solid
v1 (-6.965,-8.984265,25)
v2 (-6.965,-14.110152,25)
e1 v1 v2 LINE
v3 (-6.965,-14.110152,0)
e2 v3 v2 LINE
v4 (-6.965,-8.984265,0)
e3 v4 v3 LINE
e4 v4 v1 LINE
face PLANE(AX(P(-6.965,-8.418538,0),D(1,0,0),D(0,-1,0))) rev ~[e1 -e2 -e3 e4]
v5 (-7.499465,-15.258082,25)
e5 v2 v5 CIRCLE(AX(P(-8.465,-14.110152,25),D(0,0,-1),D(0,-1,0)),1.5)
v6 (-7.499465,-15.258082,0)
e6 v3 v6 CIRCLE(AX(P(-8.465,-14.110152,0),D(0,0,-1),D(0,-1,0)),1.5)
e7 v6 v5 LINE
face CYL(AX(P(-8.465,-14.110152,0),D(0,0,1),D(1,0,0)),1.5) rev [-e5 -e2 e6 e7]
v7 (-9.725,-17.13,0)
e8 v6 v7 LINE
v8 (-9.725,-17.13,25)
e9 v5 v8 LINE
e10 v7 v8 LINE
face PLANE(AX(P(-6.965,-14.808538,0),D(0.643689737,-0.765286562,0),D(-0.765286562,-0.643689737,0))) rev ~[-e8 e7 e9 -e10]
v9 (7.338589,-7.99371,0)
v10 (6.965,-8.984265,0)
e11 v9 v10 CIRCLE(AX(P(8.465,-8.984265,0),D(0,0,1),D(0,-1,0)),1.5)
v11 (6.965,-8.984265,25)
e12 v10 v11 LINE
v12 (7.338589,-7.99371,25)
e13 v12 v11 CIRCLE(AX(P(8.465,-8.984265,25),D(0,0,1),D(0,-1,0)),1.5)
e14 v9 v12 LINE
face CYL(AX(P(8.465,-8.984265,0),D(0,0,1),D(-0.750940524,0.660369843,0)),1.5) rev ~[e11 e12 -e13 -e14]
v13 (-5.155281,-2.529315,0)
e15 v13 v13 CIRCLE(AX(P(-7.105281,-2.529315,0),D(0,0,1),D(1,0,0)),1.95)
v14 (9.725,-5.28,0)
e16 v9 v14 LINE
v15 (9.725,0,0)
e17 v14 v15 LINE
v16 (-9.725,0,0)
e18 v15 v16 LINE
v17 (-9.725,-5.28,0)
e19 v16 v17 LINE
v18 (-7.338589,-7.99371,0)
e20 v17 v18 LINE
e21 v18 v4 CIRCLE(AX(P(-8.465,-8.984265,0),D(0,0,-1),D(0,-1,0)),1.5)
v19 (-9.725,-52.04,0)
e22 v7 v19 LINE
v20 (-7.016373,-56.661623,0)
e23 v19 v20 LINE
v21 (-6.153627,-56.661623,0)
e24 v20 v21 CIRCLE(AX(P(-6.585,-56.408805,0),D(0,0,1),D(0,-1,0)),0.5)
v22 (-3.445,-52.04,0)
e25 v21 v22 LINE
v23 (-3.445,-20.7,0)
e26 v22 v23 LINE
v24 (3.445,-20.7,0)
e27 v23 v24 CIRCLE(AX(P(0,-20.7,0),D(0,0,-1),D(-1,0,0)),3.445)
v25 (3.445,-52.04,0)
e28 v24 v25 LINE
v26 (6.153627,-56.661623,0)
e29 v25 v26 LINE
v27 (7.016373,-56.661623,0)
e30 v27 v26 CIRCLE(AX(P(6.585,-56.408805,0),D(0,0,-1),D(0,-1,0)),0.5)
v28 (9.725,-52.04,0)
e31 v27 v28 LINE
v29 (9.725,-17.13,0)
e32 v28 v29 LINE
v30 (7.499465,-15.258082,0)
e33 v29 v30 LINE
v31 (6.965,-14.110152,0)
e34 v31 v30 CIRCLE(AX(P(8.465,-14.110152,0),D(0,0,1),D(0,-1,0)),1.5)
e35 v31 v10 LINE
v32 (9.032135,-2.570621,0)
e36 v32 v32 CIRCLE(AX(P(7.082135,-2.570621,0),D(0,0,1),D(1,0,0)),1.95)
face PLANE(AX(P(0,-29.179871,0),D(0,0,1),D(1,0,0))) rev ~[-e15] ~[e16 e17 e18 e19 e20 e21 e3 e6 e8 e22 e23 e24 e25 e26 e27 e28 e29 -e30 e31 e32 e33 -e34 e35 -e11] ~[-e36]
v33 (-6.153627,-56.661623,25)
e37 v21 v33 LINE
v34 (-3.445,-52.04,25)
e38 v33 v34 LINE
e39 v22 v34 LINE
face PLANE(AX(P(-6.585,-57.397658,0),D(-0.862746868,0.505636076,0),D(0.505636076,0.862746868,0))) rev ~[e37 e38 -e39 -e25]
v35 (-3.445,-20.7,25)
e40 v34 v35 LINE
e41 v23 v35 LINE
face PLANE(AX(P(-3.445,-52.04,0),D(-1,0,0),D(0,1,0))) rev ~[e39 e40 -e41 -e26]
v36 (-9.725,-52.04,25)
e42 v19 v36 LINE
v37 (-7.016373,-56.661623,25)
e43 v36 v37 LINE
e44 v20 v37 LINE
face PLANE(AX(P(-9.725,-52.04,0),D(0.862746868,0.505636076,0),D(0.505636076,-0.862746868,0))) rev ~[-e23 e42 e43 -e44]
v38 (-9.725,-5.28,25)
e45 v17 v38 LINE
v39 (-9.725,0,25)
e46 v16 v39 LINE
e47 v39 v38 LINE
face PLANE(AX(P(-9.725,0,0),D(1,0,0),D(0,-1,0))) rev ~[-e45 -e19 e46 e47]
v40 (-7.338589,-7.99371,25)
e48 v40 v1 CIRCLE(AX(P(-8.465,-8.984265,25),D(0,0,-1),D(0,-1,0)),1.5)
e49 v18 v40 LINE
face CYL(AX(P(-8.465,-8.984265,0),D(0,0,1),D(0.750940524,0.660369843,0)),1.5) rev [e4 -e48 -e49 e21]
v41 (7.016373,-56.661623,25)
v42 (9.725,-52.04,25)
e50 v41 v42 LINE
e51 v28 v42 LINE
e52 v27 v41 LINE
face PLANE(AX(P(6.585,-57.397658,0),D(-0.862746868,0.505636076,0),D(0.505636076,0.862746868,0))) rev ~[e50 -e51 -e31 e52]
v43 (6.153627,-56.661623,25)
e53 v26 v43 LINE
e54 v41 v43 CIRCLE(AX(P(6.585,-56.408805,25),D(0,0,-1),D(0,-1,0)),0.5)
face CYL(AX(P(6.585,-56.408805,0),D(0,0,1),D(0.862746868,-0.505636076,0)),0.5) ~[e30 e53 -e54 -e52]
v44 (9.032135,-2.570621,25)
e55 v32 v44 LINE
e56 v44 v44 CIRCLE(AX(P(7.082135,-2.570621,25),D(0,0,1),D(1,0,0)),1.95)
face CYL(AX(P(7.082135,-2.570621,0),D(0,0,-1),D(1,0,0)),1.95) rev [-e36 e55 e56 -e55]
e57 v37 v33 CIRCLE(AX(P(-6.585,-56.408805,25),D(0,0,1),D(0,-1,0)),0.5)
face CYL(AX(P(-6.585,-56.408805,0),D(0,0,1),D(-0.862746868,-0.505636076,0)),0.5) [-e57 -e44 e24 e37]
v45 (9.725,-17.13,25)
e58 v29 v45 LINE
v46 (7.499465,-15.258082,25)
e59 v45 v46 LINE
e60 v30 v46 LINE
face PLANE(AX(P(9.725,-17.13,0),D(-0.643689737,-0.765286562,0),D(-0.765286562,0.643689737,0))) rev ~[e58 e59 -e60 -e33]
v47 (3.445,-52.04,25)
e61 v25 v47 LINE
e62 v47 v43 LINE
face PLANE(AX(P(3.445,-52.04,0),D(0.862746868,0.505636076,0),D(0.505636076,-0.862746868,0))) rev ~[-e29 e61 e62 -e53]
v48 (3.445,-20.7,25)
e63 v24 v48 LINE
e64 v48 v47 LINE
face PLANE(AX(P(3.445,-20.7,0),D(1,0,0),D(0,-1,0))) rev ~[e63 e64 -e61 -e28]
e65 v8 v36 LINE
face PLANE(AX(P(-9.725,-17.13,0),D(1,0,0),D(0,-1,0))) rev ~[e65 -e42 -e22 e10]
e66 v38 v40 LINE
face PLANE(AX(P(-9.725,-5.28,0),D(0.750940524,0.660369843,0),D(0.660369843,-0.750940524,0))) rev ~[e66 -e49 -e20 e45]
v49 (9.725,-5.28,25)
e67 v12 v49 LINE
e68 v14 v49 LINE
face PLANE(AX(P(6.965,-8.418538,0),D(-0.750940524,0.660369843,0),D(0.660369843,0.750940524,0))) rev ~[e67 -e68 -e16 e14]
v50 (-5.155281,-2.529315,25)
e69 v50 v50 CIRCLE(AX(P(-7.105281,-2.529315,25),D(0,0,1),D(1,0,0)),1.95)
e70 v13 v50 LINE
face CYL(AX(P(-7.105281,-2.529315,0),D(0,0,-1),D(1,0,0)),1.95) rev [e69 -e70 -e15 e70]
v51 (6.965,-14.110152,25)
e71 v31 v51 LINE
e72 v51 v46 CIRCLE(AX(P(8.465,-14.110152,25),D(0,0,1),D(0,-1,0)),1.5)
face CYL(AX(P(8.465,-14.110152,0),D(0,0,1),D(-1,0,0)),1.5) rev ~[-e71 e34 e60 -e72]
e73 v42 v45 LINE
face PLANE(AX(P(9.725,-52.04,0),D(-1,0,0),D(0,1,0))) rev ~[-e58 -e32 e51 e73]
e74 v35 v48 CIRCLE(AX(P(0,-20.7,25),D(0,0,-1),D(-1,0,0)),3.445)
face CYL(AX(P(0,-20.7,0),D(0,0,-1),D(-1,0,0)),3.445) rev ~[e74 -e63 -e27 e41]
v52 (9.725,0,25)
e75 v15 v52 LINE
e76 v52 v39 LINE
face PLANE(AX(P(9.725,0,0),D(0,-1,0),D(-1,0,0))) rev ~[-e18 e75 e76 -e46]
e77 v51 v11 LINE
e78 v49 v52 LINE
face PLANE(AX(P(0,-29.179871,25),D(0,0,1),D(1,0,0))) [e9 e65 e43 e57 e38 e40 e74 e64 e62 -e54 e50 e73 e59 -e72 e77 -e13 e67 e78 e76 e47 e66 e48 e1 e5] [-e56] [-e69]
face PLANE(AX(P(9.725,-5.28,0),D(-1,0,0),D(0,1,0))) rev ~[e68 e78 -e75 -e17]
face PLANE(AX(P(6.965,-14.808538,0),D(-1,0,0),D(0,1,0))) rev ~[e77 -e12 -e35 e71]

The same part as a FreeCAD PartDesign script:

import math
import FreeCAD as App
import Part
import Sketcher

V = App.Vector
Q = App.Units.Quantity


def edges_at(feature, points):
    """Names of the edges that pass closest to the given points."""
    edges = feature.Shape.Edges
    near = lambda p: min(range(len(edges)), key=lambda i: edges[i].distToShape(Part.Vertex(*p))[0])
    return sorted({f"Edge{near(p) + 1}" for p in points})

doc = App.newDocument("Part")
params = doc.addObject("Spreadsheet::Sheet", "Params")
for row, (alias, value) in enumerate([
    ("sketch1_diameter", "3.9 mm"),
    ("sketch1_width", "19.45 mm"),
    ("sketch1_height", "5.28 mm"),
    ("sketch1_height2", "6.39 mm"),
    ("sketch1_height3", "34.91 mm"),
    ("pad1_length", "25 mm"),
    ("fillet_radius", "1.5 mm"),
    ("fillet2_radius", "0.5 mm"),
], start=1):
    params.set(f"A{row}", alias)
    params.set(f"B{row}", "=" + value)
    params.setAlias(f"B{row}", alias)

body = doc.addObject("PartDesign::Body", "Body")

# Sketch on XY plane
sketch1 = body.newObject("Sketcher::SketchObject", "Sketch")
sketch1.AttachmentSupport = (doc.getObject("XY_Plane"), [""])
sketch1.MapMode = "FlatFace"
sketch1.addGeometry([
    Part.LineSegment(V(9.7, 0, 0), V(-9.7, 0, 0)),  # 0
    Part.LineSegment(V(-9.7, 0, 0), V(-9.7, -5.3, 0)),  # 1
    Part.LineSegment(V(-9.7, -5.3, 0), V(-7, -8.4, 0)),  # 2
    Part.LineSegment(V(-7, -8.4, 0), V(-7, -14.8, 0)),  # 3
    Part.LineSegment(V(-7, -14.8, 0), V(-9.7, -17.1, 0)),  # 4
    Part.LineSegment(V(-9.7, -17.1, 0), V(-9.7, -52, 0)),  # 5
    Part.LineSegment(V(-9.7, -52, 0), V(-6.6, -57.4, 0)),  # 6
    Part.LineSegment(V(-6.6, -57.4, 0), V(-3.4, -52, 0)),  # 7
    Part.LineSegment(V(-3.4, -52, 0), V(-3.4, -20.7, 0)),  # 8
    Part.ArcOfCircle(Part.Circle(V(0, -20.7, 0), V(0, 0, 1), 3.4), math.radians(0), math.radians(180)),  # 9
    Part.LineSegment(V(3.4, -20.7, 0), V(3.4, -52, 0)),  # 10
    Part.LineSegment(V(3.4, -52, 0), V(6.6, -57.4, 0)),  # 11
    Part.LineSegment(V(6.6, -57.4, 0), V(9.7, -52, 0)),  # 12
    Part.LineSegment(V(9.7, -52, 0), V(9.7, -17.1, 0)),  # 13
    Part.LineSegment(V(9.7, -17.1, 0), V(7, -14.8, 0)),  # 14
    Part.LineSegment(V(7, -14.8, 0), V(7, -8.4, 0)),  # 15
    Part.LineSegment(V(7, -8.4, 0), V(9.7, -5.3, 0)),  # 16
    Part.LineSegment(V(9.7, -5.3, 0), V(9.7, 0, 0)),  # 17
    Part.Circle(V(7.1, -2.6, 0), V(0, 0, 1), 1.9),  # 18
    Part.Circle(V(-7.1, -2.5, 0), V(0, 0, 1), 1.9),  # 19
], False)
sketch1.addConstraint([
    Sketcher.Constraint("Coincident", 0, 2, 1, 1),
    Sketcher.Constraint("Coincident", 1, 2, 2, 1),
    Sketcher.Constraint("Coincident", 2, 2, 3, 1),
    Sketcher.Constraint("Coincident", 3, 2, 4, 1),
    Sketcher.Constraint("Coincident", 4, 2, 5, 1),
    Sketcher.Constraint("Coincident", 5, 2, 6, 1),
    Sketcher.Constraint("Coincident", 6, 2, 7, 1),
    Sketcher.Constraint("Coincident", 7, 2, 8, 1),
    Sketcher.Constraint("Tangent", 8, 2, 9, 2),
    Sketcher.Constraint("Tangent", 9, 1, 10, 1),
    Sketcher.Constraint("Coincident", 10, 2, 11, 1),
    Sketcher.Constraint("Coincident", 11, 2, 12, 1),
    Sketcher.Constraint("Coincident", 12, 2, 13, 1),
    Sketcher.Constraint("Coincident", 13, 2, 14, 1),
    Sketcher.Constraint("Coincident", 14, 2, 15, 1),
    Sketcher.Constraint("Coincident", 15, 2, 16, 1),
    Sketcher.Constraint("Coincident", 16, 2, 17, 1),
    Sketcher.Constraint("Coincident", 17, 2, 0, 1),
    Sketcher.Constraint("Horizontal", 0),
    Sketcher.Constraint("Vertical", 1),
    Sketcher.Constraint("Vertical", 3),
    Sketcher.Constraint("Vertical", 5),
    Sketcher.Constraint("Vertical", 8),
    Sketcher.Constraint("Vertical", 10),
    Sketcher.Constraint("Vertical", 13),
    Sketcher.Constraint("Vertical", 15),
    Sketcher.Constraint("Vertical", 17),
    Sketcher.Constraint("Equal", 18, 19),
    Sketcher.Constraint("Symmetric", 0, 2, 17, 2, -1, 1),
    Sketcher.Constraint("Symmetric", 7, 2, 10, 2, -2),
    Sketcher.Constraint("Symmetric", 6, 2, 11, 2, -2),
    Sketcher.Constraint("Symmetric", 5, 2, 12, 2, -2),
    Sketcher.Constraint("Symmetric", 3, 2, 14, 2, -2),
    Sketcher.Constraint("Parallel", 6, 11),
    Sketcher.Constraint("Horizontal", 5, 2, 7, 2),
    Sketcher.Constraint("Horizontal", 4, 2, 13, 2),
    Sketcher.Constraint("Horizontal", 2, 2, 15, 2),
    Sketcher.Constraint("Horizontal", 1, 2, 16, 2),
    Sketcher.Constraint("Vertical", 1, 2, 4, 2),
    Sketcher.Constraint("Diameter", 18, Q("3.9 mm")),
    Sketcher.Constraint("Radius", 9, Q("3.445 mm")),
    Sketcher.Constraint("DistanceX", 0, 2, 0, 1, Q("19.45 mm")),
    Sketcher.Constraint("DistanceY", 1, 2, 1, 1, Q("5.28 mm")),
    Sketcher.Constraint("DistanceY", 3, 2, 3, 1, Q("6.39 mm")),
    Sketcher.Constraint("DistanceY", 5, 2, 5, 1, Q("34.91 mm")),
    Sketcher.Constraint("DistanceY", 8, 1, 8, 2, Q("31.34 mm")),
    Sketcher.Constraint("DistanceY", 9, 3, -1, 1, Q("20.7 mm")),
    Sketcher.Constraint("Distance", 6, Q("6.21 mm")),
    Sketcher.Constraint("DistanceX", 1, 2, 2, 2, Q("2.76 mm")),
    Sketcher.Constraint("DistanceY", 18, 3, -1, 1, Q("2.570621 mm")),
    Sketcher.Constraint("DistanceX", 19, 3, -1, 1, Q("7.105281 mm")),
    Sketcher.Constraint("DistanceY", 9, 3, 3, 2, Q("5.891462 mm")),
    Sketcher.Constraint("DistanceX", -1, 1, 18, 3, Q("7.082135 mm")),
    Sketcher.Constraint("DistanceY", 19, 3, -1, 1, Q("2.529315 mm")),
])
sketch1.setExpression("Constraints[39]", "Params.sketch1_diameter")
sketch1.setExpression("Constraints[41]", "Params.sketch1_width")
sketch1.setExpression("Constraints[42]", "Params.sketch1_height")
sketch1.setExpression("Constraints[43]", "Params.sketch1_height2")
sketch1.setExpression("Constraints[44]", "Params.sketch1_height3")
pad1 = body.newObject("PartDesign::Pad", "Pad")
pad1.Profile = sketch1
pad1.setExpression("Length", "Params.pad1_length")
doc.recompute()

fillet = body.newObject("PartDesign::Fillet", "Fillet")
fillet.Base = (pad1, edges_at(pad1, [
    (6.965, -8.419, 12.5),
    (6.965, -14.809, 12.5),
    (-6.965, -8.419, 12.5),
    (-6.965, -14.809, 12.5),
]))
fillet.setExpression("Radius", "Params.fillet_radius")
doc.recompute()

fillet2 = body.newObject("PartDesign::Fillet", "Fillet001")
fillet2.Base = (fillet, edges_at(fillet, [(-6.585, -57.398, 12.5), (6.585, -57.398, 12.5)]))
fillet2.setExpression("Radius", "Params.fillet2_radius")

doc.recompute()
